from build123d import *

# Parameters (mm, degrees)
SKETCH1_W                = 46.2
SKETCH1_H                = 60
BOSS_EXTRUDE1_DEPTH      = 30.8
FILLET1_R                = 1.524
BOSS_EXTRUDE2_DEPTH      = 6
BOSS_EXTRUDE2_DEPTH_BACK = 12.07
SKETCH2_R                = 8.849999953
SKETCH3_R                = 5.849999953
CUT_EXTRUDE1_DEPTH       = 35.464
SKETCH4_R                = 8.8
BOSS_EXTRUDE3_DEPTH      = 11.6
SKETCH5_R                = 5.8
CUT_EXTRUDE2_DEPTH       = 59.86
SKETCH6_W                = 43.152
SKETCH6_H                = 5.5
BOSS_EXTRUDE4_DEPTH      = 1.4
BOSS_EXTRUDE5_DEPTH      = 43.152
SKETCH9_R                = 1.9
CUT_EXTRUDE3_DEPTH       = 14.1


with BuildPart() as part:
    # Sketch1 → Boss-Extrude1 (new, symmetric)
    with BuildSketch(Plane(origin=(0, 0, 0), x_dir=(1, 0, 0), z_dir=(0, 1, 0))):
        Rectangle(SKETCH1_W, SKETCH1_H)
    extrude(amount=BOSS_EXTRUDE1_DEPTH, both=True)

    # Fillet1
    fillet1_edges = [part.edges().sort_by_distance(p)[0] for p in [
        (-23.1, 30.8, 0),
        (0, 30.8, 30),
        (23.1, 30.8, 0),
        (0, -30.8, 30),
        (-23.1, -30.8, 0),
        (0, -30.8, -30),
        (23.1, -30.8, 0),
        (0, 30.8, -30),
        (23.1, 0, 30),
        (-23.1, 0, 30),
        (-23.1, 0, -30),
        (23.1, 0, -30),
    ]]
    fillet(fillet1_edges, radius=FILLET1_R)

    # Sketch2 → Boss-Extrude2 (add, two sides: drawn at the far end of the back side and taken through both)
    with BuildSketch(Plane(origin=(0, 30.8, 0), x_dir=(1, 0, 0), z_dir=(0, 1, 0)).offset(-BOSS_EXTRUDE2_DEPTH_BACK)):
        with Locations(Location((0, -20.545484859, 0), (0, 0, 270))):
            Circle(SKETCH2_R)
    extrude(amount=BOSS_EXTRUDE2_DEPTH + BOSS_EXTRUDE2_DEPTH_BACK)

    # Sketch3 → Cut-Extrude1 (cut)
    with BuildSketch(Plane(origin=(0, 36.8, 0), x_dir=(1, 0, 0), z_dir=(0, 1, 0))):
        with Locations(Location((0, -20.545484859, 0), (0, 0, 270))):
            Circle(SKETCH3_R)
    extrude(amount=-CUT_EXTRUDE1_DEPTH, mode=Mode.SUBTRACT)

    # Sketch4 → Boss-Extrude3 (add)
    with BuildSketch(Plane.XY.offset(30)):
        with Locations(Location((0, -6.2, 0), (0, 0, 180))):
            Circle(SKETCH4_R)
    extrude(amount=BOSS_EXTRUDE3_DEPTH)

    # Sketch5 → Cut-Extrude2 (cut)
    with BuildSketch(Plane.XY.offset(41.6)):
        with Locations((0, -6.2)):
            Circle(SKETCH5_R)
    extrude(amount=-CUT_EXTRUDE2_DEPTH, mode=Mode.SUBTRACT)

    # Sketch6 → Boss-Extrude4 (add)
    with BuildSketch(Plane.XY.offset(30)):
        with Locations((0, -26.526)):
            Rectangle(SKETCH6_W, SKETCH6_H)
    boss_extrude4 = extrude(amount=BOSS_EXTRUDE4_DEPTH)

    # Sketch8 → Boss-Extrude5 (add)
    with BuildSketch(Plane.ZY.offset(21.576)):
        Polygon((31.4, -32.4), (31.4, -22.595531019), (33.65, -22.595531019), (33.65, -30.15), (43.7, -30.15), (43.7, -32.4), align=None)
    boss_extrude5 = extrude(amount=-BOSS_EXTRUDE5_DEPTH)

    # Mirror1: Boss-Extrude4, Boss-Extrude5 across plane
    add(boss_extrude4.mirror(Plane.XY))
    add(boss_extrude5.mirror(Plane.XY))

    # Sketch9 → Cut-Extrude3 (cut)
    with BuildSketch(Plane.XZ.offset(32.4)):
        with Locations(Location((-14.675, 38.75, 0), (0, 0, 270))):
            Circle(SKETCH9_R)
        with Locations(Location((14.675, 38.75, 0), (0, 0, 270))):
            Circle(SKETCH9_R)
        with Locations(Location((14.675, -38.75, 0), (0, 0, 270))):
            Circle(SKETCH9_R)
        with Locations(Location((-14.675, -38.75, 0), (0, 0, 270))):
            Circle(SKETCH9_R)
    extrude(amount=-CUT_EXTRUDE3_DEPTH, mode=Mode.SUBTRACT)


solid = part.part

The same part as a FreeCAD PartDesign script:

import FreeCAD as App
import Part
import Sketcher

V = App.Vector
Q = App.Units.Quantity

doc = App.newDocument("Part")
body = doc.addObject("PartDesign::Body", "Body")

# Sketch on XZ plane
sketch1 = doc.addObject("Sketcher::SketchObject", "Sketch")
body.addObject(sketch1)
sketch1.AttachmentSupport = (doc.XZ_Plane, [""])
sketch1.MapMode = "FlatFace"
sketch1.addGeometry([
    Part.LineSegment(V(-23, -30, 0), V(-23, 30, 0)),
    Part.LineSegment(V(-23, 30, 0), V(23, 30, 0)),
    Part.LineSegment(V(23, 30, 0), V(23, -30, 0)),
    Part.LineSegment(V(23, -30, 0), V(-23, -30, 0)),
], False)
sketch1.addConstraint([
    Sketcher.Constraint("Coincident", 0, 2, 1, 1),
    Sketcher.Constraint("Coincident", 1, 2, 2, 1),
    Sketcher.Constraint("Coincident", 2, 2, 3, 1),
    Sketcher.Constraint("Coincident", 3, 2, 0, 1),
    Sketcher.Constraint("Vertical", 0),
    Sketcher.Constraint("Horizontal", 1),
    Sketcher.Constraint("Vertical", 2),
    Sketcher.Constraint("Horizontal", 3),
    Sketcher.Constraint("Symmetric", 0, 2, 2, 2, -1, 1),
    Sketcher.Constraint("DistanceY", 0, 1, 0, 2, Q("60 mm")),
    Sketcher.Constraint("DistanceX", 1, 1, 1, 2, Q("46.2 mm")),
])
pad1 = doc.addObject("PartDesign::Pad", "Pad")
body.addObject(pad1)
pad1.Profile = sketch1
pad1.Length = 61.6
pad1.Midplane = True
doc.recompute()

fillet = doc.addObject("PartDesign::Fillet", "Fillet")
body.addObject(fillet)
fillet.Base = (pad1, ["Edge1"])
fillet.UseAllEdges = True
fillet.Radius = 1.524

# Sketch on XZ plane
sketch2 = doc.addObject("Sketcher::SketchObject", "Sketch001")
body.addObject(sketch2)
sketch2.AttachmentSupport = (doc.XZ_Plane, [""])
sketch2.MapMode = "FlatFace"
sketch2.AttachmentOffset = App.Placement(V(0, 0, -30.8), App.Rotation())
sketch2.addGeometry(Part.Circle(V(0, 21, 0), V(0, 0, 1), 9), False)
sketch2.addConstraint([
    Sketcher.Constraint("PointOnObject", 0, 3, -2),
    Sketcher.Constraint("Diameter", 0, Q("17.7 mm")),
    Sketcher.Constraint("DistanceY", -1, 1, 0, 3, Q("20.545485 mm")),
])
pad2 = doc.addObject("PartDesign::Pad", "Pad001")
body.addObject(pad2)
pad2.Profile = sketch2
pad2.Type = "TwoLengths"
pad2.Length = 6
pad2.Length2 = 12.07
pad2.Reversed = True

# Sketch on XZ plane
sketch3 = doc.addObject("Sketcher::SketchObject", "Sketch002")
body.addObject(sketch3)
sketch3.AttachmentSupport = (doc.XZ_Plane, [""])
sketch3.MapMode = "FlatFace"
sketch3.AttachmentOffset = App.Placement(V(0, 0, -36.8), App.Rotation())
sketch3.addGeometry(Part.Circle(V(0, 21, 0), V(0, 0, 1), 6), False)
sketch3.addConstraint([
    Sketcher.Constraint("PointOnObject", 0, 3, -2),
    Sketcher.Constraint("Diameter", 0, Q("11.7 mm")),
    Sketcher.Constraint("DistanceY", -1, 1, 0, 3, Q("20.545485 mm")),
])
pocket1 = doc.addObject("PartDesign::Pocket", "Pocket")
body.addObject(pocket1)
pocket1.Profile = sketch3
pocket1.Length = 35.464
pocket1.Reversed = True

# Sketch on XY plane
sketch4 = doc.addObject("Sketcher::SketchObject", "Sketch003")
body.addObject(sketch4)
sketch4.AttachmentSupport = (doc.XY_Plane, [""])
sketch4.MapMode = "FlatFace"
sketch4.AttachmentOffset = App.Placement(V(0, 0, 30), App.Rotation())
sketch4.addGeometry(Part.Circle(V(0, -6, 0), V(0, 0, 1), 9), False)
sketch4.addConstraint([
    Sketcher.Constraint("PointOnObject", 0, 3, -2),
    Sketcher.Constraint("Diameter", 0, Q("17.6 mm")),
    Sketcher.Constraint("DistanceY", 0, 3, -1, 1, Q("6.2 mm")),
])
pad3 = doc.addObject("PartDesign::Pad", "Pad002")
body.addObject(pad3)
pad3.Profile = sketch4
pad3.Length = 11.6

# Sketch on XY plane
sketch5 = doc.addObject("Sketcher::SketchObject", "Sketch004")
body.addObject(sketch5)
sketch5.AttachmentSupport = (doc.XY_Plane, [""])
sketch5.MapMode = "FlatFace"
sketch5.AttachmentOffset = App.Placement(V(0, 0, 41.6), App.Rotation())
sketch5.addGeometry(Part.Circle(V(0, -6, 0), V(0, 0, 1), 6), False)
sketch5.addConstraint([
    Sketcher.Constraint("PointOnObject", 0, 3, -2),
    Sketcher.Constraint("Diameter", 0, Q("11.6 mm")),
    Sketcher.Constraint("DistanceY", 0, 3, -1, 1, Q("6.2 mm")),
])
pocket2 = doc.addObject("PartDesign::Pocket", "Pocket001")
body.addObject(pocket2)
pocket2.Profile = sketch5
pocket2.Length = 59.86

# Sketch on XY plane
sketch6 = doc.addObject("Sketcher::SketchObject", "Sketch005")
body.addObject(sketch6)
sketch6.AttachmentSupport = (doc.XY_Plane, [""])
sketch6.MapMode = "FlatFace"
sketch6.AttachmentOffset = App.Placement(V(0, 0, 30), App.Rotation())
sketch6.addGeometry([
    Part.LineSegment(V(-22, -24, 0), V(-22, -29, 0)),
    Part.LineSegment(V(-22, -29, 0), V(22, -29, 0)),
    Part.LineSegment(V(22, -29, 0), V(22, -24, 0)),
    Part.LineSegment(V(22, -24, 0), V(-22, -24, 0)),
], False)
sketch6.addConstraint([
    Sketcher.Constraint("Coincident", 0, 2, 1, 1),
    Sketcher.Constraint("Coincident", 1, 2, 2, 1),
    Sketcher.Constraint("Coincident", 2, 2, 3, 1),
    Sketcher.Constraint("Coincident", 3, 2, 0, 1),
    Sketcher.Constraint("Vertical", 0),
    Sketcher.Constraint("Horizontal", 1),
    Sketcher.Constraint("Vertical", 2),
    Sketcher.Constraint("Horizontal", 3),
    Sketcher.Constraint("DistanceY", 0, 2, 0, 1, Q("5.5 mm")),
    Sketcher.Constraint("DistanceX", 1, 1, 1, 2, Q("43.152 mm")),
    Sketcher.Constraint("DistanceX", 0, 2, -1, 1, Q("21.576 mm")),
    Sketcher.Constraint("DistanceY", 0, 2, -1, 1, Q("29.276 mm")),
])
pad4 = doc.addObject("PartDesign::Pad", "Pad003")
body.addObject(pad4)
pad4.Profile = sketch6
pad4.Length = 1.4

# Sketch on YZ plane
sketch7 = doc.addObject("Sketcher::SketchObject", "Sketch006")
body.addObject(sketch7)
sketch7.AttachmentSupport = (doc.YZ_Plane, [""])
sketch7.MapMode = "FlatFace"
sketch7.AttachmentOffset = App.Placement(V(0, 0, -21.576), App.Rotation())
sketch7.addGeometry([
    Part.LineSegment(V(-22.6, 31.4, 0), V(-32.4, 31.4, 0)),  # 0
    Part.LineSegment(V(-32.4, 31.4, 0), V(-32.4, 43.7, 0)),  # 1
    Part.LineSegment(V(-32.4, 43.7, 0), V(-30.1, 43.7, 0)),  # 2
    Part.LineSegment(V(-30.1, 43.7, 0), V(-30.1, 33.6, 0)),  # 3
    Part.LineSegment(V(-30.1, 33.6, 0), V(-22.6, 33.6, 0)),  # 4
    Part.LineSegment(V(-22.6, 33.6, 0), V(-22.6, 31.4, 0)),  # 5
], False)
sketch7.addConstraint([
    Sketcher.Constraint("Coincident", 0, 2, 1, 1),
    Sketcher.Constraint("Coincident", 1, 2, 2, 1),
    Sketcher.Constraint("Coincident", 2, 2, 3, 1),
    Sketcher.Constraint("Coincident", 3, 2, 4, 1),
    Sketcher.Constraint("Coincident", 4, 2, 5, 1),
    Sketcher.Constraint("Coincident", 5, 2, 0, 1),
    Sketcher.Constraint("Horizontal", 0),
    Sketcher.Constraint("Vertical", 1),
    Sketcher.Constraint("Horizontal", 2),
    Sketcher.Constraint("Vertical", 3),
    Sketcher.Constraint("Horizontal", 4),
    Sketcher.Constraint("Vertical", 5),
    Sketcher.Constraint("Equal", 2, 5),
    Sketcher.Constraint("DistanceY", 1, 1, 1, 2, Q("12.3 mm")),
    Sketcher.Constraint("DistanceX", 2, 1, 2, 2, Q("2.25 mm")),
    Sketcher.Constraint("DistanceX", 0, 2, -1, 1, Q("32.4 mm")),
    Sketcher.Constraint("DistanceY", -1, 1, 0, 2, Q("31.4 mm")),
    Sketcher.Constraint("DistanceX", 0, 2, 0, 1, Q("9.804469 mm")),
])
pad5 = doc.addObject("PartDesign::Pad", "Pad004")
body.addObject(pad5)
pad5.Profile = sketch7
pad5.Length = 43.152
doc.recompute()

mirrored = doc.addObject("PartDesign::Mirrored", "Mirrored")
body.addObject(mirrored)
mirrored.Originals = [pad4, pad5]
mirrored.MirrorPlane = (doc.XY_Plane, [""])
body.Tip = mirrored

# Sketch on XZ plane
sketch8 = doc.addObject("Sketcher::SketchObject", "Sketch007")
body.addObject(sketch8)
sketch8.AttachmentSupport = (doc.XZ_Plane, [""])
sketch8.MapMode = "FlatFace"
sketch8.AttachmentOffset = App.Placement(V(0, 0, 32.4), App.Rotation())
sketch8.addGeometry([
    Part.Circle(V(-14.7, 38.8, 0), V(0, 0, 1), 1.9),
    Part.Circle(V(14.7, 38.8, 0), V(0, 0, 1), 1.9),
    Part.Circle(V(14.7, -38.8, 0), V(0, 0, 1), 1.9),
    Part.Circle(V(-14.7, -38.8, 0), V(0, 0, 1), 1.9),
], False)
sketch8.addConstraint([
    Sketcher.Constraint("Equal", 0, 1),
    Sketcher.Constraint("Equal", 1, 2),
    Sketcher.Constraint("Equal", 2, 3),
    Sketcher.Constraint("Symmetric", 0, 3, 2, 3, -1, 1),
    Sketcher.Constraint("Symmetric", 1, 3, 3, 3, -1, 1),
    Sketcher.Constraint("Symmetric", 0, 3, 1, 3, -2),
    Sketcher.Constraint("Diameter", 0, Q("3.8 mm")),
    Sketcher.Constraint("DistanceY", 2, 3, 1, 3, Q("77.5 mm")),
    Sketcher.Constraint("DistanceX", 0, 3, 1, 3, Q("29.35 mm")),
])
pocket3 = doc.addObject("PartDesign::Pocket", "Pocket002")
body.addObject(pocket3)
pocket3.Profile = sketch8
pocket3.Length = 14.1

doc.recompute()
